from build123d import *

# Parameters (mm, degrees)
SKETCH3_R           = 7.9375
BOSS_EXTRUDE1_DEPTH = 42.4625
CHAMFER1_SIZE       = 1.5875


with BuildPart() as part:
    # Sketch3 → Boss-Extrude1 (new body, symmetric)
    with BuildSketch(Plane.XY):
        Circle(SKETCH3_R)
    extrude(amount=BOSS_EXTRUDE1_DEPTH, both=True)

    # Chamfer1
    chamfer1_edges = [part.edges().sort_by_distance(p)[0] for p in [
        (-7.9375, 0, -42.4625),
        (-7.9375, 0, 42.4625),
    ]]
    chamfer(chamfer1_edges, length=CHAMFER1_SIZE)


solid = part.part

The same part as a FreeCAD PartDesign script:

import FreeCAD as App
import Part
import Sketcher
Q = App.Units.Quantity


def edges_at(feature, points):
    """Names of the edges that pass closest to the given points."""
    edges = feature.Shape.Edges
    near = lambda p: min(range(len(edges)), key=lambda i: edges[i].distToShape(Part.Vertex(*p))[0])
    return sorted({f"Edge{near(p) + 1}" for p in points})

doc = App.newDocument("Part")
body = doc.addObject("PartDesign::Body", "Body")

# Sketch on XY plane
sketch1 = body.newObject("Sketcher::SketchObject", "Sketch")
sketch1.AttachmentSupport = (doc.getObject("XY_Plane"), [""])
sketch1.MapMode = "FlatFace"
sketch1.addGeometry(Part.Circle(App.Vector(0, 0, 0), App.Vector(0, 0, 1), 8), False)
sketch1.addConstraint(Sketcher.Constraint("Coincident", 0, 3, -1, 1))
sketch1.addConstraint(Sketcher.Constraint("Diameter", 0, Q("0.625 in")))
pad1 = body.newObject("PartDesign::Pad", "Pad")
pad1.Profile = sketch1
pad1.Length = 84.925
pad1.Midplane = True
doc.recompute()

chamfer = body.newObject("PartDesign::Chamfer", "Chamfer")
chamfer.Base = (pad1, edges_at(pad1, [(-7.938, 0, -42.462), (-7.938, 0, 42.462)]))
chamfer.Size = Q("0.0625 in")

doc.recompute()
